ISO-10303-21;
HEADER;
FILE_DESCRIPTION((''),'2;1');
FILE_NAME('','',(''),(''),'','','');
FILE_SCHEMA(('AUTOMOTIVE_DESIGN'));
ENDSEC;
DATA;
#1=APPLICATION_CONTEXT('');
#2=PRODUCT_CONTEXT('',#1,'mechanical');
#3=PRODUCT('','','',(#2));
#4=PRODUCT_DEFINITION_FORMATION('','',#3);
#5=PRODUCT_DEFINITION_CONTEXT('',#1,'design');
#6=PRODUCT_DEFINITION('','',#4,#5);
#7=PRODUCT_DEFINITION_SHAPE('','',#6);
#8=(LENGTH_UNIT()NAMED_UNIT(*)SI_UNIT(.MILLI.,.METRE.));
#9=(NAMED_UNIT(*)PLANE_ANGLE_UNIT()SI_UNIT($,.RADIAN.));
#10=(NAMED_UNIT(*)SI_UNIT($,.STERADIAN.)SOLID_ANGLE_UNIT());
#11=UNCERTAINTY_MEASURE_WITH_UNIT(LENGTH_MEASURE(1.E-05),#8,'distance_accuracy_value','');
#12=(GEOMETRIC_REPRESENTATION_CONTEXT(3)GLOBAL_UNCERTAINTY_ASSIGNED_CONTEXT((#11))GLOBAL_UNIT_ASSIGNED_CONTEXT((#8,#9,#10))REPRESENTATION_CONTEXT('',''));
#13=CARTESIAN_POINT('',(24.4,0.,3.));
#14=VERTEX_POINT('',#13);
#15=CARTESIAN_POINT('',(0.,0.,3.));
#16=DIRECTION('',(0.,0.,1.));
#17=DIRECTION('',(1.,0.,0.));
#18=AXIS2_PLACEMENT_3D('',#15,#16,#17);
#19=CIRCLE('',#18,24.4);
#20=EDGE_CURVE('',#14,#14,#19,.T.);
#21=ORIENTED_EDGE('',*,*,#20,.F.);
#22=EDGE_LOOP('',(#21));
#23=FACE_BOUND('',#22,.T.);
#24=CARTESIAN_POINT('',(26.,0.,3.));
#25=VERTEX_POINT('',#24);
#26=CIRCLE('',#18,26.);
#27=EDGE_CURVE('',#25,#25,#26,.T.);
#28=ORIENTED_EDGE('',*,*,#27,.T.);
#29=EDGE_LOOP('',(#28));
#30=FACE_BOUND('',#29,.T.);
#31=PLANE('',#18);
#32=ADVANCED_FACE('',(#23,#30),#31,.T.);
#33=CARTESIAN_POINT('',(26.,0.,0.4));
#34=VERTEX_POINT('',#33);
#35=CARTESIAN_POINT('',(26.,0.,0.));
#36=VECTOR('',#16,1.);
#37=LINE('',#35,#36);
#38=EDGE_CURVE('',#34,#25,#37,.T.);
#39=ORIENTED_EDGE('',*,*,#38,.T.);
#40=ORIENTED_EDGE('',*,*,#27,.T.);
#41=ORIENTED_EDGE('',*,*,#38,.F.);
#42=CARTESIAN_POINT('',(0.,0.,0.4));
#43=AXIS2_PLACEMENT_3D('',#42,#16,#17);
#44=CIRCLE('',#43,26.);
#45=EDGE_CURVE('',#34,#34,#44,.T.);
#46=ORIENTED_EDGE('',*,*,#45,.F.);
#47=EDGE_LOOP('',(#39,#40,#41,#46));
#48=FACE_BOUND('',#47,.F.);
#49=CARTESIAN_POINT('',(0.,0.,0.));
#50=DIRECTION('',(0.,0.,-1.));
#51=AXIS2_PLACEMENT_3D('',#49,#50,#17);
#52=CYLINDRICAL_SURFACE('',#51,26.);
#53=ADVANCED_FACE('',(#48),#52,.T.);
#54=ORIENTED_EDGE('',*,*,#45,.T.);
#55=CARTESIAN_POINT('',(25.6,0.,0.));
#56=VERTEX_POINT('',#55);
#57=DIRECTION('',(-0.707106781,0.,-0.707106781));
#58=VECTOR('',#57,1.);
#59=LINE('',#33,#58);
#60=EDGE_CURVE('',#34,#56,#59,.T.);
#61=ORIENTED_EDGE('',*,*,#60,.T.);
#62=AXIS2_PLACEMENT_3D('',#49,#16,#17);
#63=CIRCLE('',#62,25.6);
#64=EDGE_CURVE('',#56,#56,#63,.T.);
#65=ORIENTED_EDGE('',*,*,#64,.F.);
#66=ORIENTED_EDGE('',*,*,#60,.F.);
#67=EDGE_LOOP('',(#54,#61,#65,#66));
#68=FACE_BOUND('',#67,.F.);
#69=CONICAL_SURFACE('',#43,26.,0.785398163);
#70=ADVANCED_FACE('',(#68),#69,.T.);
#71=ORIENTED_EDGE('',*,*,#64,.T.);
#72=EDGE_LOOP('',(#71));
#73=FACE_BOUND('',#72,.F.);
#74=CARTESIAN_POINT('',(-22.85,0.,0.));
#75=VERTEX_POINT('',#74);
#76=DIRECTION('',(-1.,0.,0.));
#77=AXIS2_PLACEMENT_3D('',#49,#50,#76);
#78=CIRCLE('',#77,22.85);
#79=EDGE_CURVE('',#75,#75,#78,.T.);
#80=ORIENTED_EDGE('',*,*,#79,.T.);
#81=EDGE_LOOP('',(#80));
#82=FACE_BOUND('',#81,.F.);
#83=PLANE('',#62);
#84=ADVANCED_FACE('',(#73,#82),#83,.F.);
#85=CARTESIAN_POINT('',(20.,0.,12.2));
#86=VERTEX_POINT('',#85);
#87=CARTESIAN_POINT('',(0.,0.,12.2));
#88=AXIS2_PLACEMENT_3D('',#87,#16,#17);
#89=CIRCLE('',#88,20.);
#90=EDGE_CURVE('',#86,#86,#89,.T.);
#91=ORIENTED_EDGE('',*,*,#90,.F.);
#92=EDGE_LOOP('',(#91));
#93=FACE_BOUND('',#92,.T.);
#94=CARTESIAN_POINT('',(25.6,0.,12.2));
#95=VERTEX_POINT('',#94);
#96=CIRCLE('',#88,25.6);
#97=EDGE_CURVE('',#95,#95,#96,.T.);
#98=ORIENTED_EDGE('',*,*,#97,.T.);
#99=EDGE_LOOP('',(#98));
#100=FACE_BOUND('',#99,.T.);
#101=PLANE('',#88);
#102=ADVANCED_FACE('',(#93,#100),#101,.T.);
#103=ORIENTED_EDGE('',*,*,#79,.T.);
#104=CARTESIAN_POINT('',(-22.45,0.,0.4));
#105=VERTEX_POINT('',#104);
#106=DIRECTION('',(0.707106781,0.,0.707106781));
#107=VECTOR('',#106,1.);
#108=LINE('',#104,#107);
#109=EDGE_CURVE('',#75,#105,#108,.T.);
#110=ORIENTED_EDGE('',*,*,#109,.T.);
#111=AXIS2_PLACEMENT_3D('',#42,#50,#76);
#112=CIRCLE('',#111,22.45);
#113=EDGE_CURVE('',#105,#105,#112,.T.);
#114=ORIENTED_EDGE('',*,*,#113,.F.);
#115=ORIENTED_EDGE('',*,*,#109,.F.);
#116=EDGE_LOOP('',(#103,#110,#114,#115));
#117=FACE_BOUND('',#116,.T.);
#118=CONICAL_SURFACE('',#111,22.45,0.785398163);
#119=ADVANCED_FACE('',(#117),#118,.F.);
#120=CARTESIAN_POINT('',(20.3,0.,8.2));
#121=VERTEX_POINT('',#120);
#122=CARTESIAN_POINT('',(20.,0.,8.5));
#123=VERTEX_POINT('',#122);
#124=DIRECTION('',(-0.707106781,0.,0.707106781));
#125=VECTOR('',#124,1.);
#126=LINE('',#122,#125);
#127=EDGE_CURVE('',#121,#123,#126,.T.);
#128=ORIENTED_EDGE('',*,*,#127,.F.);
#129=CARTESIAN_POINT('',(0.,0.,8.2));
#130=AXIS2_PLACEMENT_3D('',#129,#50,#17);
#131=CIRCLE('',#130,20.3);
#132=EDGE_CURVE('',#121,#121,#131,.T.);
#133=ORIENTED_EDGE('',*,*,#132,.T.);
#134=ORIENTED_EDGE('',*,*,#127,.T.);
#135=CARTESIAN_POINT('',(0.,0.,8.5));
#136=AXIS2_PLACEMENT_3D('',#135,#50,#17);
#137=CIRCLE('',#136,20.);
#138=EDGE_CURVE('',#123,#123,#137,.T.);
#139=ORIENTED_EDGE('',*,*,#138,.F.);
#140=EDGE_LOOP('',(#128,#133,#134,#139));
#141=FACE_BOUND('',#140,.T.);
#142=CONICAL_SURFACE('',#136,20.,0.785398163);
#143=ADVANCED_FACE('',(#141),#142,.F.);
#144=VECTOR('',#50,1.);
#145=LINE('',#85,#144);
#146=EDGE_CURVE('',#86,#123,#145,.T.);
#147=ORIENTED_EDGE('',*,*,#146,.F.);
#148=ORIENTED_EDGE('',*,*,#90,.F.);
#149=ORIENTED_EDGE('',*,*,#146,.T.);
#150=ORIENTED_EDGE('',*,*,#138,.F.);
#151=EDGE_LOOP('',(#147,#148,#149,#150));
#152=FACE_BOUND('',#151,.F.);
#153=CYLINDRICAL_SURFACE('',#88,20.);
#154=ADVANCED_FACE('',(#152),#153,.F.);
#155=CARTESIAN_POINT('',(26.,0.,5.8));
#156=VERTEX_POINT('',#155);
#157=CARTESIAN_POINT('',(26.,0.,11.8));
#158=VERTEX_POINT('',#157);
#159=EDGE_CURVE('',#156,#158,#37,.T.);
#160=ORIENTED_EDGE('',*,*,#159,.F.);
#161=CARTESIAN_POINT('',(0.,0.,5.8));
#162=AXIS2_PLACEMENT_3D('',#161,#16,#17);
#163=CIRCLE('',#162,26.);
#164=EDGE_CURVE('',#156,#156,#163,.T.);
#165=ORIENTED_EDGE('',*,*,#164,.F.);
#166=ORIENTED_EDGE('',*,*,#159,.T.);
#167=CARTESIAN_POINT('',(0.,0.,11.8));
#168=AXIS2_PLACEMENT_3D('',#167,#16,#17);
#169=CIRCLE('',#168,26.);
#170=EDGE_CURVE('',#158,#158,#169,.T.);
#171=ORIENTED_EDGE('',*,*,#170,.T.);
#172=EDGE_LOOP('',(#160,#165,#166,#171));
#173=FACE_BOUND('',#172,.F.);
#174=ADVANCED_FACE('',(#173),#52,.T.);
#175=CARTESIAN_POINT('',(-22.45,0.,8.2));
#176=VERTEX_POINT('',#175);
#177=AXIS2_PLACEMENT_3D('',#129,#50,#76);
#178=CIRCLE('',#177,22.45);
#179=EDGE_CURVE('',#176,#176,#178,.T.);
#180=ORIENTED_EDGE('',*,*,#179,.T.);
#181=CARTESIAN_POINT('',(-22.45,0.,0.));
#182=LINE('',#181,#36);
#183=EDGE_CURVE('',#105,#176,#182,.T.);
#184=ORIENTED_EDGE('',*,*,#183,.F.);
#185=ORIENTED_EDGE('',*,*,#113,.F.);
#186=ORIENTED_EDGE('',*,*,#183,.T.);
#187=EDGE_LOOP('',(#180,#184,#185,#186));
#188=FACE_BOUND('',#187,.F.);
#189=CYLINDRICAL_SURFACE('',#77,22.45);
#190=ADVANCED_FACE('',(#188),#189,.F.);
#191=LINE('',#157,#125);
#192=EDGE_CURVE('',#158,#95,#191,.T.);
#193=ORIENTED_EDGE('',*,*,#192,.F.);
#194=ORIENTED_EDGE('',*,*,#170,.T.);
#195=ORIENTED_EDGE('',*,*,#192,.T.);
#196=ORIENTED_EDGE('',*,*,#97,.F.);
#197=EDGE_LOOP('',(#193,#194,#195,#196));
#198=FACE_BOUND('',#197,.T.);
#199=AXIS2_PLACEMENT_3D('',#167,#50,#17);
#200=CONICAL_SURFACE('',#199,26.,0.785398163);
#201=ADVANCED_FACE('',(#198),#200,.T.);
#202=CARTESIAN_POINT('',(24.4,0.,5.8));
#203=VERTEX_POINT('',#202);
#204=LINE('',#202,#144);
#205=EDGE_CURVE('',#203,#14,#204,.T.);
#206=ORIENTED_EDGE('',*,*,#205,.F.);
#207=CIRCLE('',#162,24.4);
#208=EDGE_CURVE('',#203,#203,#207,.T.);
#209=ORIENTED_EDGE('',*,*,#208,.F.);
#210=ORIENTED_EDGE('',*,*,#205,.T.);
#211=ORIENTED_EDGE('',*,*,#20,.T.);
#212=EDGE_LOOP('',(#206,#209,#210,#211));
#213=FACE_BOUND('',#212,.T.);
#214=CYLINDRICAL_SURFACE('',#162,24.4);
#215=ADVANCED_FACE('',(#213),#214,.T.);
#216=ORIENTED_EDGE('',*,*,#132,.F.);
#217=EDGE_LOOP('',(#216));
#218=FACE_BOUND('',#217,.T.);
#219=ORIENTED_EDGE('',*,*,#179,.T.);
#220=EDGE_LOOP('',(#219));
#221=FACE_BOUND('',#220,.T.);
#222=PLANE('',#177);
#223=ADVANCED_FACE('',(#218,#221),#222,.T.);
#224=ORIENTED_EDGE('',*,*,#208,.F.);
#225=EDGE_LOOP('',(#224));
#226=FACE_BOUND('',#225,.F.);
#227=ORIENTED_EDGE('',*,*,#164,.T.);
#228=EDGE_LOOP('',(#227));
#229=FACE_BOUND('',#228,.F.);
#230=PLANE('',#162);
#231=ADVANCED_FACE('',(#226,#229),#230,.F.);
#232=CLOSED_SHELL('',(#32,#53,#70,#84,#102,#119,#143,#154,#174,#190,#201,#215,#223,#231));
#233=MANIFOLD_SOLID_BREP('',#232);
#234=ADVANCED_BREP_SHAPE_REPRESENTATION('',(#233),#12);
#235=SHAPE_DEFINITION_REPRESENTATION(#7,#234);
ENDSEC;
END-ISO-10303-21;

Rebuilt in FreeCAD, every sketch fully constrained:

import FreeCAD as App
import Part
import Sketcher
from FreeCAD import Vector


def edges_at(feature, points):
    """Names of the edges that pass closest to the given points."""
    edges = feature.Shape.Edges
    near = lambda p: min(range(len(edges)), key=lambda i: edges[i].distToShape(Part.Vertex(*p))[0])
    return sorted({f"Edge{near(p) + 1}" for p in points})

doc = App.newDocument("Part")
body = doc.addObject("PartDesign::Body", "Body")

# Sketch on XY plane
sketch1 = body.newObject("Sketcher::SketchObject", "Sketch")
sketch1.AttachmentSupport = (doc.getObject("XY_Plane"), [""])
sketch1.MapMode = "FlatFace"
sketch1.addGeometry(Part.Circle(Vector(0, 0, 0), Vector(0, 0, 1), 26), False)
sketch1.addConstraint(Sketcher.Constraint("Coincident", 0, 3, -1, 1))
sketch1.addConstraint(Sketcher.Constraint("Diameter", 0, 52.0))
pad1 = body.newObject("PartDesign::Pad", "Pad")
pad1.Profile = sketch1
pad1.Length = 12.2

# Sketch on XY plane
sketch2 = body.newObject("Sketcher::SketchObject", "Sketch001")
sketch2.AttachmentSupport = (doc.getObject("XY_Plane"), [""])
sketch2.MapMode = "FlatFace"
sketch2.AttachmentOffset = App.Placement(Vector(0, 0, 12.2), App.Rotation())
sketch2.addGeometry(Part.Circle(Vector(0, 0, 0), Vector(0, 0, 1), 20), False)
sketch2.addConstraint(Sketcher.Constraint("Coincident", 0, 3, -1, 1))
sketch2.addConstraint(Sketcher.Constraint("Diameter", 0, 40.0))
pocket1 = body.newObject("PartDesign::Pocket", "Pocket")
pocket1.Profile = sketch2
pocket1.Type = "ThroughAll"

# Sketch on XY plane
sketch3 = body.newObject("Sketcher::SketchObject", "Sketch002")
sketch3.AttachmentSupport = (doc.getObject("XY_Plane"), [""])
sketch3.MapMode = "FlatFace"
sketch3.addGeometry(Part.Circle(Vector(0, 0, 0), Vector(0, 0, 1), 22.45), False)
sketch3.addGeometry(Part.Circle(Vector(0, 0, 0), Vector(0, 0, 1), 20), False)
sketch3.addConstraint(Sketcher.Constraint("Coincident", 0, 3, -1, 1))
sketch3.addConstraint(Sketcher.Constraint("Coincident", 1, 3, -1, 1))
sketch3.addConstraint(Sketcher.Constraint("Diameter", 0, 44.9))
sketch3.addConstraint(Sketcher.Constraint("Diameter", 1, 40.0))
pocket2 = body.newObject("PartDesign::Pocket", "Pocket001")
pocket2.Profile = sketch3
pocket2.Length = 8.2
pocket2.Reversed = True

# Sketch on XY plane
sketch4 = body.newObject("Sketcher::SketchObject", "Sketch003")
sketch4.AttachmentSupport = (doc.getObject("XY_Plane"), [""])
sketch4.MapMode = "FlatFace"
sketch4.AttachmentOffset = App.Placement(Vector(0, 0, 5.8), App.Rotation())
sketch4.addGeometry(Part.Circle(Vector(0, 0, 0), Vector(0, 0, 1), 26), False)
sketch4.addGeometry(Part.Circle(Vector(0, 0, 0), Vector(0, 0, 1), 24.4), False)
sketch4.addConstraint(Sketcher.Constraint("Coincident", 0, 3, -1, 1))
sketch4.addConstraint(Sketcher.Constraint("Coincident", 1, 3, -1, 1))
sketch4.addConstraint(Sketcher.Constraint("Diameter", 1, 48.8))
sketch4.addConstraint(Sketcher.Constraint("Diameter", 0, 52.0))
pocket3 = body.newObject("PartDesign::Pocket", "Pocket002")
pocket3.Profile = sketch4
pocket3.Length = 2.8
doc.recompute()

chamfer = body.newObject("PartDesign::Chamfer", "Chamfer")
chamfer.Base = (pocket3, edges_at(pocket3, [(-26, 0, 12.2), (-26, 0, 0), (22.45, 0, 0)]))
chamfer.Size = 0.4
doc.recompute()

chamfer2 = body.newObject("PartDesign::Chamfer", "Chamfer001")
chamfer2.Base = (chamfer, edges_at(chamfer, [(-20, 0, 8.2)]))
chamfer2.Size = 0.3

doc.recompute()
